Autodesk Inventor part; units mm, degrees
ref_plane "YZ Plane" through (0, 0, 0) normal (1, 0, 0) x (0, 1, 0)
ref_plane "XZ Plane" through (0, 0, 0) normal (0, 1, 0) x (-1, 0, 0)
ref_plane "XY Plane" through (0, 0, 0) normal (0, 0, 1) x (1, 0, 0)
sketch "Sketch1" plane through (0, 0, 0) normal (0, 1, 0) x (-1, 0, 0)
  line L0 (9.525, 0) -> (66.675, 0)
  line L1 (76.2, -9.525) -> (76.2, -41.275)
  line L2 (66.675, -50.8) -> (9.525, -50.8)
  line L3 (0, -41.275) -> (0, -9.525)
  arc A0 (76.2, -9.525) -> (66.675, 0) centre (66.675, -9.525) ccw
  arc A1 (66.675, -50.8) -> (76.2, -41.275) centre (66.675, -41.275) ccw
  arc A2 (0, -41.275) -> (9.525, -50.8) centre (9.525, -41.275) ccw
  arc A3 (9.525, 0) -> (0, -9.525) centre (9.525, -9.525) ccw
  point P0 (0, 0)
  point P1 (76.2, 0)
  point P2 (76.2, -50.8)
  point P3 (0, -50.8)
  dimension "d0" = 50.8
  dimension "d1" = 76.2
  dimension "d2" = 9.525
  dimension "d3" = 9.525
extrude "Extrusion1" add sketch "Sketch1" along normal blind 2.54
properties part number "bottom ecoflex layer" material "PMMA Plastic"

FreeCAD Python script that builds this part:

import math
import FreeCAD as App
import Part
import Sketcher

V = App.Vector
Q = App.Units.Quantity

doc = App.newDocument("Part")
body = doc.addObject("PartDesign::Body", "Body")

sketch1 = doc.addObject("Sketcher::SketchObject", "Sketch")
body.addObject(sketch1)
sketch1.AttachmentSupport = (doc.XZ_Plane, [""])
sketch1.MapMode = "FlatFace"
sketch1.addGeometry(Part.LineSegment(V(-67, 0, 0), V(-10, 0, 0)), False)
sketch1.addGeometry(Part.ArcOfCircle(Part.Circle(V(-10, -10, 0), V(0, 0, 1), 10), math.radians(0), math.radians(90)), False)
sketch1.addGeometry(Part.LineSegment(V(0, -10, 0), V(0, -41, 0)), False)
sketch1.addGeometry(Part.ArcOfCircle(Part.Circle(V(-10, -41, 0), V(0, 0, 1), 10), math.radians(-90), math.radians(0)), False)
sketch1.addGeometry(Part.LineSegment(V(-10, -51, 0), V(-67, -51, 0)), False)
sketch1.addGeometry(Part.ArcOfCircle(Part.Circle(V(-67, -41, 0), V(0, 0, 1), 10), math.radians(180), math.radians(270)), False)
sketch1.addGeometry(Part.LineSegment(V(-76, -41, 0), V(-76, -10, 0)), False)
sketch1.addGeometry(Part.ArcOfCircle(Part.Circle(V(-67, -10, 0), V(0, 0, 1), 10), math.radians(90), math.radians(180)), False)
sketch1.addConstraint(Sketcher.Constraint("Tangent", 0, 2, 1, 2))
sketch1.addConstraint(Sketcher.Constraint("Tangent", 1, 1, 2, 1))
sketch1.addConstraint(Sketcher.Constraint("Tangent", 2, 2, 3, 2))
sketch1.addConstraint(Sketcher.Constraint("Tangent", 3, 1, 4, 1))
sketch1.addConstraint(Sketcher.Constraint("Tangent", 4, 2, 5, 2))
sketch1.addConstraint(Sketcher.Constraint("Tangent", 5, 1, 6, 1))
sketch1.addConstraint(Sketcher.Constraint("Tangent", 6, 2, 7, 2))
sketch1.addConstraint(Sketcher.Constraint("Tangent", 7, 1, 0, 1))
sketch1.addConstraint(Sketcher.Constraint("Horizontal", 0))
sketch1.addConstraint(Sketcher.Constraint("Vertical", 2))
sketch1.addConstraint(Sketcher.Constraint("Horizontal", 4))
sketch1.addConstraint(Sketcher.Constraint("Vertical", 6))
sketch1.addConstraint(Sketcher.Constraint("Equal", 1, 3))
sketch1.addConstraint(Sketcher.Constraint("Equal", 3, 5))
sketch1.addConstraint(Sketcher.Constraint("Equal", 5, 7))
sketch1.addConstraint(Sketcher.Constraint("PointOnObject", 0, 2, -1))
sketch1.addConstraint(Sketcher.Constraint("PointOnObject", 1, 1, -2))
sketch1.addConstraint(Sketcher.Constraint("DistanceY", 3, 1, -1, 1, Q("2 in")))
sketch1.addConstraint(Sketcher.Constraint("DistanceX", 5, 1, -1, 1, Q("3 in")))
sketch1.addConstraint(Sketcher.Constraint("Radius", 1, Q("0.375 in")))
pad1 = doc.addObject("PartDesign::Pad", "Pad")
body.addObject(pad1)
pad1.Profile = sketch1
pad1.Length = Q("0.1 in")
pad1.Reversed = True

doc.recompute()
